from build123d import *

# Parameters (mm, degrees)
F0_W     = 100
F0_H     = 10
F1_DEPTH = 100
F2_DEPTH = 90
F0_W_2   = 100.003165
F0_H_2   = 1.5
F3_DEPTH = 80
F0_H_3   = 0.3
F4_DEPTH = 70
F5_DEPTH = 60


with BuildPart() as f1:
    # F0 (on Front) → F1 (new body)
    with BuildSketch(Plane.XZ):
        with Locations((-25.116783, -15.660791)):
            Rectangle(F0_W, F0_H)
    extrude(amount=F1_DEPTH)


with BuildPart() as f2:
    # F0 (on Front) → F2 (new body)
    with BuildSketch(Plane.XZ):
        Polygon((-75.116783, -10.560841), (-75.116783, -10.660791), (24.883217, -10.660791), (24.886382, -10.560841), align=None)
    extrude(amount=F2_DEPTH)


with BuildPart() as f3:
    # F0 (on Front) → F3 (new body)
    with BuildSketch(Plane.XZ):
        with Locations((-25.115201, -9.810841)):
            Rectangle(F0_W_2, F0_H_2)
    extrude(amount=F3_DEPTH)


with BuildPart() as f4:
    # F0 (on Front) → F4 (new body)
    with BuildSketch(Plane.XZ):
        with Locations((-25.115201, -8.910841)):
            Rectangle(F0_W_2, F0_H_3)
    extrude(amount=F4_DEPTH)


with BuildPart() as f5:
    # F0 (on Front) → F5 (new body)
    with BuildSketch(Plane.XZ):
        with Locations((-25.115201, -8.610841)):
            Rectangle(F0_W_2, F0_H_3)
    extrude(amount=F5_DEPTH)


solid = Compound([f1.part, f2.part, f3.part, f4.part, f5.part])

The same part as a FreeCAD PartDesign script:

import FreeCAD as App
import Part
import Sketcher
Q = App.Units.Quantity

doc = App.newDocument("Part")
body = doc.addObject("PartDesign::Body", "Body")

# Sketch on XZ plane
sketch1 = body.newObject("Sketcher::SketchObject", "Sketch")
sketch1.AttachmentSupport = (doc.getObject("XZ_Plane"), [""])
sketch1.MapMode = "FlatFace"
sketch1.addGeometry(Part.LineSegment(App.Vector(-75, -11, 0), App.Vector(-75, -21, 0)), False)
sketch1.addGeometry(Part.LineSegment(App.Vector(-75, -21, 0), App.Vector(25, -21, 0)), False)
sketch1.addGeometry(Part.LineSegment(App.Vector(25, -21, 0), App.Vector(25, -11, 0)), False)
sketch1.addGeometry(Part.LineSegment(App.Vector(25, -11, 0), App.Vector(-75, -11, 0)), False)
sketch1.addConstraint(Sketcher.Constraint("Coincident", 0, 2, 1, 1))
sketch1.addConstraint(Sketcher.Constraint("Coincident", 1, 2, 2, 1))
sketch1.addConstraint(Sketcher.Constraint("Coincident", 2, 2, 3, 1))
sketch1.addConstraint(Sketcher.Constraint("Coincident", 3, 2, 0, 1))
sketch1.addConstraint(Sketcher.Constraint("Vertical", 0))
sketch1.addConstraint(Sketcher.Constraint("Horizontal", 1))
sketch1.addConstraint(Sketcher.Constraint("Vertical", 2))
sketch1.addConstraint(Sketcher.Constraint("Horizontal", 3))
sketch1.addConstraint(Sketcher.Constraint("DistanceX", 1, 1, 1, 2, Q("100 mm")))
sketch1.addConstraint(Sketcher.Constraint("DistanceY", 0, 2, 0, 1, Q("10 mm")))
sketch1.addConstraint(Sketcher.Constraint("DistanceY", 0, 2, -1, 1, Q("20.660791 mm")))
sketch1.addConstraint(Sketcher.Constraint("DistanceX", 0, 2, -1, 1, Q("75.116783 mm")))
pad1 = body.newObject("PartDesign::Pad", "Pad")
pad1.Profile = sketch1
pad1.Length = 100
body2 = doc.addObject("PartDesign::Body", "Body001")

# Sketch on XZ plane
sketch2 = body2.newObject("Sketcher::SketchObject", "Sketch001")
sketch2.AttachmentSupport = (doc.getObject("XZ_Plane001"), [""])
sketch2.MapMode = "FlatFace"
sketch2.addGeometry(Part.LineSegment(App.Vector(-75.12, -10.56, 0), App.Vector(-75.12, -10.66, 0)), False)
sketch2.addGeometry(Part.LineSegment(App.Vector(-75.12, -10.66, 0), App.Vector(24.88, -10.66, 0)), False)
sketch2.addGeometry(Part.LineSegment(App.Vector(24.88, -10.66, 0), App.Vector(24.89, -10.56, 0)), False)
sketch2.addGeometry(Part.LineSegment(App.Vector(24.89, -10.56, 0), App.Vector(-75.12, -10.56, 0)), False)
sketch2.addConstraint(Sketcher.Constraint("Coincident", 0, 2, 1, 1))
sketch2.addConstraint(Sketcher.Constraint("Coincident", 1, 2, 2, 1))
sketch2.addConstraint(Sketcher.Constraint("Coincident", 2, 2, 3, 1))
sketch2.addConstraint(Sketcher.Constraint("Coincident", 3, 2, 0, 1))
sketch2.addConstraint(Sketcher.Constraint("Vertical", 0))
sketch2.addConstraint(Sketcher.Constraint("Horizontal", 1))
sketch2.addConstraint(Sketcher.Constraint("Horizontal", 3))
sketch2.addConstraint(Sketcher.Constraint("DistanceX", 1, 1, 1, 2, Q("100 mm")))
sketch2.addConstraint(Sketcher.Constraint("Distance", 2, Q("0.1 mm")))
sketch2.addConstraint(Sketcher.Constraint("DistanceY", 0, 2, 0, 1, Q("0.09995 mm")))
sketch2.addConstraint(Sketcher.Constraint("DistanceY", 0, 2, -1, 1, Q("10.660791 mm")))
sketch2.addConstraint(Sketcher.Constraint("DistanceX", 0, 2, -1, 1, Q("75.116783 mm")))
pad2 = body2.newObject("PartDesign::Pad", "Pad001")
pad2.Profile = sketch2
pad2.Length = 90
body3 = doc.addObject("PartDesign::Body", "Body002")

# Sketch on XZ plane
sketch3 = body3.newObject("Sketcher::SketchObject", "Sketch002")
sketch3.AttachmentSupport = (doc.getObject("XZ_Plane002"), [""])
sketch3.MapMode = "FlatFace"
sketch3.addGeometry(Part.LineSegment(App.Vector(-75.1, -9.1, 0), App.Vector(-75.1, -10.6, 0)), False)
sketch3.addGeometry(Part.LineSegment(App.Vector(-75.1, -10.6, 0), App.Vector(24.9, -10.6, 0)), False)
sketch3.addGeometry(Part.LineSegment(App.Vector(24.9, -10.6, 0), App.Vector(24.9, -9.1, 0)), False)
sketch3.addGeometry(Part.LineSegment(App.Vector(24.9, -9.1, 0), App.Vector(-75.1, -9.1, 0)), False)
sketch3.addConstraint(Sketcher.Constraint("Coincident", 0, 2, 1, 1))
sketch3.addConstraint(Sketcher.Constraint("Coincident", 1, 2, 2, 1))
sketch3.addConstraint(Sketcher.Constraint("Coincident", 2, 2, 3, 1))
sketch3.addConstraint(Sketcher.Constraint("Coincident", 3, 2, 0, 1))
sketch3.addConstraint(Sketcher.Constraint("Vertical", 0))
sketch3.addConstraint(Sketcher.Constraint("Horizontal", 1))
sketch3.addConstraint(Sketcher.Constraint("Vertical", 2))
sketch3.addConstraint(Sketcher.Constraint("Horizontal", 3))
sketch3.addConstraint(Sketcher.Constraint("DistanceY", 0, 2, 0, 1, Q("1.5 mm")))
sketch3.addConstraint(Sketcher.Constraint("DistanceX", 1, 1, 1, 2, Q("100.003165 mm")))
sketch3.addConstraint(Sketcher.Constraint("DistanceY", 0, 2, -1, 1, Q("10.560841 mm")))
sketch3.addConstraint(Sketcher.Constraint("DistanceX", -1, 1, 1, 2, Q("24.886381 mm")))
pad3 = body3.newObject("PartDesign::Pad", "Pad002")
pad3.Profile = sketch3
pad3.Length = 80
body4 = doc.addObject("PartDesign::Body", "Body003")

# Sketch on XZ plane
sketch4 = body4.newObject("Sketcher::SketchObject", "Sketch003")
sketch4.AttachmentSupport = (doc.getObject("XZ_Plane003"), [""])
sketch4.MapMode = "FlatFace"
sketch4.addGeometry(Part.LineSegment(App.Vector(-75.12, -8.76, 0), App.Vector(-75.12, -9.06, 0)), False)
sketch4.addGeometry(Part.LineSegment(App.Vector(-75.12, -9.06, 0), App.Vector(24.89, -9.06, 0)), False)
sketch4.addGeometry(Part.LineSegment(App.Vector(24.89, -9.06, 0), App.Vector(24.89, -8.76, 0)), False)
sketch4.addGeometry(Part.LineSegment(App.Vector(24.89, -8.76, 0), App.Vector(-75.12, -8.76, 0)), False)
sketch4.addConstraint(Sketcher.Constraint("Coincident", 0, 2, 1, 1))
sketch4.addConstraint(Sketcher.Constraint("Coincident", 1, 2, 2, 1))
sketch4.addConstraint(Sketcher.Constraint("Coincident", 2, 2, 3, 1))
sketch4.addConstraint(Sketcher.Constraint("Coincident", 3, 2, 0, 1))
sketch4.addConstraint(Sketcher.Constraint("Vertical", 0))
sketch4.addConstraint(Sketcher.Constraint("Horizontal", 1))
sketch4.addConstraint(Sketcher.Constraint("Vertical", 2))
sketch4.addConstraint(Sketcher.Constraint("Horizontal", 3))
sketch4.addConstraint(Sketcher.Constraint("DistanceY", 0, 2, 0, 1, Q("0.3 mm")))
sketch4.addConstraint(Sketcher.Constraint("DistanceX", 1, 1, 1, 2, Q("100.003165 mm")))
sketch4.addConstraint(Sketcher.Constraint("DistanceY", 0, 2, -1, 1, Q("9.060841 mm")))
sketch4.addConstraint(Sketcher.Constraint("DistanceX", -1, 1, 1, 2, Q("24.886381 mm")))
pad4 = body4.newObject("PartDesign::Pad", "Pad003")
pad4.Profile = sketch4
pad4.Length = 70
body5 = doc.addObject("PartDesign::Body", "Body004")

# Sketch on XZ plane
sketch5 = body5.newObject("Sketcher::SketchObject", "Sketch004")
sketch5.AttachmentSupport = (doc.getObject("XZ_Plane004"), [""])
sketch5.MapMode = "FlatFace"
sketch5.addGeometry(Part.LineSegment(App.Vector(-75.12, -8.46, 0), App.Vector(-75.12, -8.76, 0)), False)
sketch5.addGeometry(Part.LineSegment(App.Vector(-75.12, -8.76, 0), App.Vector(24.89, -8.76, 0)), False)
sketch5.addGeometry(Part.LineSegment(App.Vector(24.89, -8.76, 0), App.Vector(24.89, -8.46, 0)), False)
sketch5.addGeometry(Part.LineSegment(App.Vector(24.89, -8.46, 0), App.Vector(-75.12, -8.46, 0)), False)
sketch5.addConstraint(Sketcher.Constraint("Coincident", 0, 2, 1, 1))
sketch5.addConstraint(Sketcher.Constraint("Coincident", 1, 2, 2, 1))
sketch5.addConstraint(Sketcher.Constraint("Coincident", 2, 2, 3, 1))
sketch5.addConstraint(Sketcher.Constraint("Coincident", 3, 2, 0, 1))
sketch5.addConstraint(Sketcher.Constraint("Vertical", 0))
sketch5.addConstraint(Sketcher.Constraint("Horizontal", 1))
sketch5.addConstraint(Sketcher.Constraint("Vertical", 2))
sketch5.addConstraint(Sketcher.Constraint("Horizontal", 3))
sketch5.addConstraint(Sketcher.Constraint("DistanceY", 0, 2, 0, 1, Q("0.3 mm")))
sketch5.addConstraint(Sketcher.Constraint("DistanceX", 1, 1, 1, 2, Q("100.003165 mm")))
sketch5.addConstraint(Sketcher.Constraint("DistanceY", 0, 2, -1, 1, Q("8.760841 mm")))
sketch5.addConstraint(Sketcher.Constraint("DistanceX", -1, 1, 1, 2, Q("24.886381 mm")))
pad5 = body5.newObject("PartDesign::Pad", "Pad004")
pad5.Profile = sketch5
pad5.Length = 60

doc.recompute()
